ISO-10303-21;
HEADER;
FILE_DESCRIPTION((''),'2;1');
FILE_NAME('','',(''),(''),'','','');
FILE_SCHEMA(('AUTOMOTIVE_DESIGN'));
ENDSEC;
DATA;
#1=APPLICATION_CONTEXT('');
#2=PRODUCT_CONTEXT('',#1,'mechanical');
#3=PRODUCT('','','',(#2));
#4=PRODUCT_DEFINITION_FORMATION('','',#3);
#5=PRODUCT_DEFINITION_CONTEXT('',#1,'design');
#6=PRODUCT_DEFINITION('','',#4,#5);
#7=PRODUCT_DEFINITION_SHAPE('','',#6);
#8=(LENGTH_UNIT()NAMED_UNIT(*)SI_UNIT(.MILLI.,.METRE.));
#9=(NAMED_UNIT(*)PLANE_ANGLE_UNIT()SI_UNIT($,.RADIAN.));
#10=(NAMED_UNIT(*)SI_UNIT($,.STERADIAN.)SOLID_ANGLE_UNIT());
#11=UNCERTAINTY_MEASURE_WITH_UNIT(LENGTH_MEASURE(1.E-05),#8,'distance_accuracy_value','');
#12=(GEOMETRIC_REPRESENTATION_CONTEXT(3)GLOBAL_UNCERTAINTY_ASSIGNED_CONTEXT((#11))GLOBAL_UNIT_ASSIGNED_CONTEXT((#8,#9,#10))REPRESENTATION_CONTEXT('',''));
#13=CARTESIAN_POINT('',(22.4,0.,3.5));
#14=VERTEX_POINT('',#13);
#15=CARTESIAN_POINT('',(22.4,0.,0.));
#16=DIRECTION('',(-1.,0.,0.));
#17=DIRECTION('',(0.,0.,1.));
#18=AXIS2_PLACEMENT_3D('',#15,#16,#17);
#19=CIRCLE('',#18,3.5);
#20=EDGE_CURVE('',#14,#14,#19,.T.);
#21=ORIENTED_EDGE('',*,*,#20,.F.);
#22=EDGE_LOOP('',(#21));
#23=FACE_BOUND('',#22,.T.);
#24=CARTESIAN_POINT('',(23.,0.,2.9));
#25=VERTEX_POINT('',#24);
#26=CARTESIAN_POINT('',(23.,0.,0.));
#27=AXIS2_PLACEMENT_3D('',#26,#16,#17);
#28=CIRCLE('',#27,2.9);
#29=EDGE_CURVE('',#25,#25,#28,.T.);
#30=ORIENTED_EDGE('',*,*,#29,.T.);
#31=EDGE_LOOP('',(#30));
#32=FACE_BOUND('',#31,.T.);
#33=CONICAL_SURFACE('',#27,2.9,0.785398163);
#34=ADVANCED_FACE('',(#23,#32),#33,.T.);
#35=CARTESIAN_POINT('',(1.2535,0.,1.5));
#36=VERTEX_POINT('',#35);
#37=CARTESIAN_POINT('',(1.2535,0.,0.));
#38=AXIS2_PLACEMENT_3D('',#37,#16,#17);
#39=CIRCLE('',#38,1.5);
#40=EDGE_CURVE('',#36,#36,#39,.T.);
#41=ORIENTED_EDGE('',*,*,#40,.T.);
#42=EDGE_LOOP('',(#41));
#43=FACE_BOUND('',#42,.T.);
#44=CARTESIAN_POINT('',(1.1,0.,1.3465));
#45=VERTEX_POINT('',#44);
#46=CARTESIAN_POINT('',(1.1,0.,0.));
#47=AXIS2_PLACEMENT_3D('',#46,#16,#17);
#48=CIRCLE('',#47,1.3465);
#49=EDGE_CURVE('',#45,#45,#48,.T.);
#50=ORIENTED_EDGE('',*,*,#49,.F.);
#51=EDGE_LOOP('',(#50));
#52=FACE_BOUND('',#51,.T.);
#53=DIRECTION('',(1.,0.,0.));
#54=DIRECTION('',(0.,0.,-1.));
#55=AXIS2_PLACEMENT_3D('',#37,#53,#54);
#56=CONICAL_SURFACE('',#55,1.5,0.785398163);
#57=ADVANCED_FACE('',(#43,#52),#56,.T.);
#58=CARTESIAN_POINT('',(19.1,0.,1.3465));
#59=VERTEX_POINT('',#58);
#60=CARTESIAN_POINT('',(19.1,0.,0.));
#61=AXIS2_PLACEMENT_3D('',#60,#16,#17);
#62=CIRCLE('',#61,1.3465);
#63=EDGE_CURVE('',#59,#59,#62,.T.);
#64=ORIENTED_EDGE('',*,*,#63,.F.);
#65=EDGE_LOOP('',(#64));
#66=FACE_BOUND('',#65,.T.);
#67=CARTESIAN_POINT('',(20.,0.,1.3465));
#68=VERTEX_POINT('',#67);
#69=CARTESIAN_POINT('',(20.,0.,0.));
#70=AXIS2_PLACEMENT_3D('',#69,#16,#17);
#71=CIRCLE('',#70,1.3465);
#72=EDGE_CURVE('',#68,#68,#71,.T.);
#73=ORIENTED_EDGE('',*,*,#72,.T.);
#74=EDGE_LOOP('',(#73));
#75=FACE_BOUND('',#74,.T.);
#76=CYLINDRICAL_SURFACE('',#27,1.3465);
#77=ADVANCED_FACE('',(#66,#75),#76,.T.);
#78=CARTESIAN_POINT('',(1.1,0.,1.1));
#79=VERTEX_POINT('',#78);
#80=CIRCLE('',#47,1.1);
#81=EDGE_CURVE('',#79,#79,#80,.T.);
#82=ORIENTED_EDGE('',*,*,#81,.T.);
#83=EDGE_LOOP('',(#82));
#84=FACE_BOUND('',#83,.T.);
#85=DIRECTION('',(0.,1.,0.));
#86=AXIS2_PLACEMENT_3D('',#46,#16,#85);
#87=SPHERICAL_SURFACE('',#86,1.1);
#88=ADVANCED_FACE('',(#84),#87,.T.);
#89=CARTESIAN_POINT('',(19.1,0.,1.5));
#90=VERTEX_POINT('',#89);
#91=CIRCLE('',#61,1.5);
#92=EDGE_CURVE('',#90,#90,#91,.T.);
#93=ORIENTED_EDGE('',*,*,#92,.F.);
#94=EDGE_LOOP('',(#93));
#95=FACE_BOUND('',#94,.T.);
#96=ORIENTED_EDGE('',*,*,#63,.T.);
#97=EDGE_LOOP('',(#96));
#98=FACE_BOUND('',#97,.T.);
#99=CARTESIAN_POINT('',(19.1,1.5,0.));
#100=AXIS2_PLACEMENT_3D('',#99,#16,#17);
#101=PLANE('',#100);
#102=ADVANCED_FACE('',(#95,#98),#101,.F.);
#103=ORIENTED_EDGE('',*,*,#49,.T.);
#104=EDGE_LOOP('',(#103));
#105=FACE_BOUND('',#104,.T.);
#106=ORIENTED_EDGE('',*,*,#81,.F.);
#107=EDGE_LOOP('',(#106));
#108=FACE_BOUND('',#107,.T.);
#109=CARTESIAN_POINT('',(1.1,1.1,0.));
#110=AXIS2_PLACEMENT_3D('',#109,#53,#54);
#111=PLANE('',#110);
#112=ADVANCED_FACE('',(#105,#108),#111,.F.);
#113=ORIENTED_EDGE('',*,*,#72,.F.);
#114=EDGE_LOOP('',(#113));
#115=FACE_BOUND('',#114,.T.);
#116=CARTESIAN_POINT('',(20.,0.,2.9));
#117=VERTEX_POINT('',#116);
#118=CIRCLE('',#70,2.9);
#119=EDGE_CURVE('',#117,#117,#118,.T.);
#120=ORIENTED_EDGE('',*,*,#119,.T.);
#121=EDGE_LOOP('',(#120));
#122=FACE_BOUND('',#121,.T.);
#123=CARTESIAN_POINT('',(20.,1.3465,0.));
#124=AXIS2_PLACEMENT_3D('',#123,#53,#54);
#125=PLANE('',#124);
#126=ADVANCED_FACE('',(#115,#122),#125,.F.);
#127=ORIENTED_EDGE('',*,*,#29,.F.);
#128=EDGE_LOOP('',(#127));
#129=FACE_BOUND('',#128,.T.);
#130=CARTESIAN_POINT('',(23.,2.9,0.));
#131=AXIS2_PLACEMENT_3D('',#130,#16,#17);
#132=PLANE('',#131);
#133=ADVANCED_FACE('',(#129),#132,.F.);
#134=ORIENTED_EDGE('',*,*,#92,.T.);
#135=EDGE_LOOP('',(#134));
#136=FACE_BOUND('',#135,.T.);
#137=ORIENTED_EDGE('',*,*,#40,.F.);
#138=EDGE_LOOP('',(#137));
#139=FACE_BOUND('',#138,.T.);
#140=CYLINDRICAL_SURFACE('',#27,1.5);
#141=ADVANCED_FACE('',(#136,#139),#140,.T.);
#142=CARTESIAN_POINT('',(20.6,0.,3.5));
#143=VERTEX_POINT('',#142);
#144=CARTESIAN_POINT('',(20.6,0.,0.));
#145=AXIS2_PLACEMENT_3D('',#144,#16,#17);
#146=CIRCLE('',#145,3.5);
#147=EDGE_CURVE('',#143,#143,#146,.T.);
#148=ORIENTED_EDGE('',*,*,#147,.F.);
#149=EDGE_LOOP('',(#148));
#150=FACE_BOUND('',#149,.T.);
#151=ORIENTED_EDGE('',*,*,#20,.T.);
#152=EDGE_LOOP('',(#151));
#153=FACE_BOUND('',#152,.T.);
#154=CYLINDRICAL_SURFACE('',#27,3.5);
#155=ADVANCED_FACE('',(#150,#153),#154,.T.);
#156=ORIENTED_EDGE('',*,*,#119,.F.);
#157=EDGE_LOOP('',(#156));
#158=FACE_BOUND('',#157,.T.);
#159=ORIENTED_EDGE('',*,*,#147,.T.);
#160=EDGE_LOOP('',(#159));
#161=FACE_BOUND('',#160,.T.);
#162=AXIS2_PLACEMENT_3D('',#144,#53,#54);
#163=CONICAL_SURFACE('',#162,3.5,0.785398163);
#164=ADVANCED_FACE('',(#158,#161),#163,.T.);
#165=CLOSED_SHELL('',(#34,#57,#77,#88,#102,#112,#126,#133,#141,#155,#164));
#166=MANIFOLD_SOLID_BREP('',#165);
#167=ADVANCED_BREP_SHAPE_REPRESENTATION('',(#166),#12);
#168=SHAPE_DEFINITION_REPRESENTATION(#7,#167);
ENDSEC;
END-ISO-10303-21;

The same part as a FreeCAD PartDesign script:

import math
import FreeCAD as App
import Part
import Sketcher
Q = App.Units.Quantity

doc = App.newDocument("Part")
body = doc.addObject("PartDesign::Body", "Body")

# Sketch on XY plane
sketch1 = body.newObject("Sketcher::SketchObject", "Sketch")
sketch1.AttachmentSupport = (doc.getObject("XY_Plane"), [""])
sketch1.MapMode = "FlatFace"
sketch1.addGeometry([
    Part.LineSegment(App.Vector(1.1, 1.35, 0), App.Vector(1.1, 1.1, 0)),  # 0
    Part.ArcOfCircle(Part.Circle(App.Vector(1.1, 0, 0), App.Vector(0, 0, 1), 1.1), math.radians(90), math.radians(180)),  # 1
    Part.LineSegment(App.Vector(0, 0, 0), App.Vector(23, 0, 0)),  # 2
    Part.LineSegment(App.Vector(23, 0, 0), App.Vector(23, 2.9, 0)),  # 3
    Part.LineSegment(App.Vector(23, 2.9, 0), App.Vector(22.4, 3.5, 0)),  # 4
    Part.LineSegment(App.Vector(22.4, 3.5, 0), App.Vector(20.6, 3.5, 0)),  # 5
    Part.LineSegment(App.Vector(20.6, 3.5, 0), App.Vector(20, 2.9, 0)),  # 6
    Part.LineSegment(App.Vector(20, 2.9, 0), App.Vector(20, 1.35, 0)),  # 7
    Part.LineSegment(App.Vector(20, 1.35, 0), App.Vector(19.1, 1.35, 0)),  # 8
    Part.LineSegment(App.Vector(19.1, 1.35, 0), App.Vector(19.1, 1.5, 0)),  # 9
    Part.LineSegment(App.Vector(19.1, 1.5, 0), App.Vector(1.25, 1.5, 0)),  # 10
    Part.LineSegment(App.Vector(1.25, 1.5, 0), App.Vector(1.1, 1.35, 0)),  # 11
], False)
sketch1.addConstraint([
    Sketcher.Constraint("Coincident", 0, 2, 1, 1),
    Sketcher.Constraint("Coincident", 1, 2, 2, 1),
    Sketcher.Constraint("Coincident", 2, 2, 3, 1),
    Sketcher.Constraint("Coincident", 3, 2, 4, 1),
    Sketcher.Constraint("Coincident", 4, 2, 5, 1),
    Sketcher.Constraint("Coincident", 5, 2, 6, 1),
    Sketcher.Constraint("Coincident", 6, 2, 7, 1),
    Sketcher.Constraint("Coincident", 7, 2, 8, 1),
    Sketcher.Constraint("Coincident", 8, 2, 9, 1),
    Sketcher.Constraint("Coincident", 9, 2, 10, 1),
    Sketcher.Constraint("Coincident", 10, 2, 11, 1),
    Sketcher.Constraint("Coincident", 11, 2, 0, 1),
    Sketcher.Constraint("Vertical", 0),
    Sketcher.Constraint("Horizontal", 2),
    Sketcher.Constraint("Vertical", 3),
    Sketcher.Constraint("Horizontal", 5),
    Sketcher.Constraint("Vertical", 7),
    Sketcher.Constraint("Horizontal", 8),
    Sketcher.Constraint("Vertical", 9),
    Sketcher.Constraint("Horizontal", 10),
    Sketcher.Constraint("Coincident", 1, 2, -1, 1),
    Sketcher.Constraint("PointOnObject", 1, 3, -1),
    Sketcher.Constraint("Perpendicular", 4, 6),
    Sketcher.Constraint("Parallel", 6, 11),
    Sketcher.Constraint("Horizontal", 3, 2, 6, 2),
    Sketcher.Constraint("Horizontal", 8, 2, 11, 2),
    Sketcher.Constraint("Vertical", 1, 3, 0, 2),
    Sketcher.Constraint("Equal", 4, 6),
    Sketcher.Constraint("Radius", 1, Q("1.1 mm")),
    Sketcher.Constraint("DistanceX", 2, 1, 2, 2, Q("23 mm")),
    Sketcher.Constraint("DistanceX", 5, 2, 5, 1, Q("1.8 mm")),
    Sketcher.Constraint("DistanceX", 8, 2, 8, 1, Q("0.9 mm")),
    Sketcher.Constraint("DistanceY", 3, 1, 3, 2, Q("2.9 mm")),
    Sketcher.Constraint("DistanceX", -1, 1, 6, 2, Q("20 mm")),
    Sketcher.Constraint("DistanceY", 9, 2, 5, 2, Q("2 mm")),
    Sketcher.Constraint("DistanceX", 10, 2, 10, 1, Q("17.8465 mm")),
])
revolution = body.newObject("PartDesign::Revolution", "Revolution")
revolution.Profile = sketch1
revolution.ReferenceAxis = (sketch1, ["H_Axis"])
revolution.Angle = 360

doc.recompute()
